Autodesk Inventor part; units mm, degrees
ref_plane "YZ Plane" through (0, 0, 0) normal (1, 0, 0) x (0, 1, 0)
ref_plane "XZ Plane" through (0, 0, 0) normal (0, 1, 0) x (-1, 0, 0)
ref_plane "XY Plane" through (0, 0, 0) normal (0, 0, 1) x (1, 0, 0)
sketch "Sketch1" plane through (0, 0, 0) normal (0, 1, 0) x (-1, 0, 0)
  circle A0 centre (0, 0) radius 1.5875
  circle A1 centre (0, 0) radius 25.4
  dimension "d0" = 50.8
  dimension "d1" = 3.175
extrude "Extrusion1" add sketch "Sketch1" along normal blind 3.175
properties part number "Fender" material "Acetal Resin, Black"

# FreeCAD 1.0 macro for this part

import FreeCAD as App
import Part
import Sketcher
Q = App.Units.Quantity

doc = App.newDocument("Part")
body = doc.addObject("PartDesign::Body", "Body")

# Sketch on XZ plane
sketch1 = doc.addObject("Sketcher::SketchObject", "Sketch")
body.addObject(sketch1)
sketch1.AttachmentSupport = (doc.XZ_Plane, [""])
sketch1.MapMode = "FlatFace"
sketch1.addGeometry(Part.Circle(App.Vector(0, 0, 0), App.Vector(0, 0, 1), 25.4), False)
sketch1.addGeometry(Part.Circle(App.Vector(0, 0, 0), App.Vector(0, 0, 1), 1.5875), False)
sketch1.addConstraint(Sketcher.Constraint("Coincident", 0, 3, -1, 1))
sketch1.addConstraint(Sketcher.Constraint("Coincident", 1, 3, -1, 1))
sketch1.addConstraint(Sketcher.Constraint("Diameter", 0, Q("2 in")))
sketch1.addConstraint(Sketcher.Constraint("Diameter", 1, Q("0.125 in")))
pad1 = doc.addObject("PartDesign::Pad", "Pad")
body.addObject(pad1)
pad1.Profile = sketch1
pad1.Length = Q("0.125 in")
pad1.Reversed = True

doc.recompute()
